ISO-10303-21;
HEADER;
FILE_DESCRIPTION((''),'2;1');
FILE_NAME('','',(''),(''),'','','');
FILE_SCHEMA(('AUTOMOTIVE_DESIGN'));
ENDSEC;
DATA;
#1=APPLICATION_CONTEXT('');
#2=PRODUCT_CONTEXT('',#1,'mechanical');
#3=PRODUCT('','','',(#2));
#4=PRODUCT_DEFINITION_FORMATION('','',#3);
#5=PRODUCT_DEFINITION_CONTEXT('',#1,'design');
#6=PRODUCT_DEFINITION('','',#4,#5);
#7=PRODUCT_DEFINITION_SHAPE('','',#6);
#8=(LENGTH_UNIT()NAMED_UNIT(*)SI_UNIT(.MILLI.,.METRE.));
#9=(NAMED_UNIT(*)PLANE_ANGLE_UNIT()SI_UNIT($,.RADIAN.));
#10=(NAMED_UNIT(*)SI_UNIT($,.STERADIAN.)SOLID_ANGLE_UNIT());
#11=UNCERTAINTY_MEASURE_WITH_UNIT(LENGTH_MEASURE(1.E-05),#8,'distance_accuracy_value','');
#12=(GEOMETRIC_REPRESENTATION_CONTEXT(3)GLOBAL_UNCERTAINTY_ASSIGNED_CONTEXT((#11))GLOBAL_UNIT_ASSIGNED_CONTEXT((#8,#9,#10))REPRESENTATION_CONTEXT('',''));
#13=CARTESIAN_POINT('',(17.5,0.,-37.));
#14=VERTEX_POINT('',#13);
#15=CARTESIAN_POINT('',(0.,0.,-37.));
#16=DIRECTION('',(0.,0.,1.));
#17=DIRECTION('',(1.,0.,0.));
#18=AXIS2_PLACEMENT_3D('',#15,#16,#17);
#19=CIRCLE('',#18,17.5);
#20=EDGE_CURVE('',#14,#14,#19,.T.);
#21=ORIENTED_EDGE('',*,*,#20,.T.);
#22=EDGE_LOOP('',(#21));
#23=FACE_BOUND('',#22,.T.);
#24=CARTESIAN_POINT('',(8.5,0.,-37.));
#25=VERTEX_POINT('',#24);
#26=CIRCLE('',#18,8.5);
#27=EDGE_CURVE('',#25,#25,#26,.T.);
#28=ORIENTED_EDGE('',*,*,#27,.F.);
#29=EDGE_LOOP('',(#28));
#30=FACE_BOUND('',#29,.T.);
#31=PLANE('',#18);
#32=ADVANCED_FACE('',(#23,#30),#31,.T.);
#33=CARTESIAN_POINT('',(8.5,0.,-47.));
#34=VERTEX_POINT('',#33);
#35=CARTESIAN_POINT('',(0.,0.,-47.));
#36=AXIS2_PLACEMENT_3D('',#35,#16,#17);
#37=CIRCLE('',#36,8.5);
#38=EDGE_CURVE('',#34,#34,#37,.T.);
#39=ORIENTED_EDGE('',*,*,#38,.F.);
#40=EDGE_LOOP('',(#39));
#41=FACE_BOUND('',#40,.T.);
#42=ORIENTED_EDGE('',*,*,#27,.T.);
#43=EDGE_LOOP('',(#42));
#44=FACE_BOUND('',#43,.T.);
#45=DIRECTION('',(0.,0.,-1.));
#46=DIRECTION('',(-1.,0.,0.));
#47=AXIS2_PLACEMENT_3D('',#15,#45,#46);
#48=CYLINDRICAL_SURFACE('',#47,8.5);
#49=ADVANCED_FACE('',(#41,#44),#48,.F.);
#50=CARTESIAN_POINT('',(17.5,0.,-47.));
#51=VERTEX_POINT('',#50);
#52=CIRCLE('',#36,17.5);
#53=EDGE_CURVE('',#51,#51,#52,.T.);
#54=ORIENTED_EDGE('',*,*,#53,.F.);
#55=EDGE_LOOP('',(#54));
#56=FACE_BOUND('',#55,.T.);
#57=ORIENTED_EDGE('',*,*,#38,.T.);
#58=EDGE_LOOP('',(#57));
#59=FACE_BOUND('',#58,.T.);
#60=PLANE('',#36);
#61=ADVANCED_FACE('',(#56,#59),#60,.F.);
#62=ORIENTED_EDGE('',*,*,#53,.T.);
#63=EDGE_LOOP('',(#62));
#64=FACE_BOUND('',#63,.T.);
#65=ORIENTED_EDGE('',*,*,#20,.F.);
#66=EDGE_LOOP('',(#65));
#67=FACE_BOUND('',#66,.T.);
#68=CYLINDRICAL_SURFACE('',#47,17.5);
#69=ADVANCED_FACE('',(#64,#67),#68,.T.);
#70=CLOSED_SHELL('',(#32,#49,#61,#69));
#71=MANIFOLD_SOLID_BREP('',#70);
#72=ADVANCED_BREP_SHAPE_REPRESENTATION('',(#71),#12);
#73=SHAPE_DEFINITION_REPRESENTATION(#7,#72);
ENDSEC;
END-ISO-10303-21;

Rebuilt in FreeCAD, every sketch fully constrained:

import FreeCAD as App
import Part
import Sketcher

V = App.Vector
Q = App.Units.Quantity

doc = App.newDocument("Part")
body = doc.addObject("PartDesign::Body", "Body")

# Sketch on XY plane
sketch1 = body.newObject("Sketcher::SketchObject", "Sketch")
sketch1.AttachmentSupport = (doc.getObject("XY_Plane"), [""])
sketch1.MapMode = "FlatFace"
sketch1.AttachmentOffset = App.Placement(V(0, 0, -47), App.Rotation())
sketch1.addGeometry([
    Part.Circle(V(0, 0, 0), V(0, 0, 1), 18),
    Part.Circle(V(0, 0, 0), V(0, 0, 1), 8),
], False)
sketch1.addConstraint([
    Sketcher.Constraint("Coincident", 0, 3, -1, 1),
    Sketcher.Constraint("Coincident", 1, 3, -1, 1),
    Sketcher.Constraint("Diameter", 0, Q("35 mm")),
    Sketcher.Constraint("Diameter", 1, Q("17 mm")),
])
pad1 = body.newObject("PartDesign::Pad", "Pad")
pad1.Profile = sketch1
pad1.Length = 10

doc.recompute()
